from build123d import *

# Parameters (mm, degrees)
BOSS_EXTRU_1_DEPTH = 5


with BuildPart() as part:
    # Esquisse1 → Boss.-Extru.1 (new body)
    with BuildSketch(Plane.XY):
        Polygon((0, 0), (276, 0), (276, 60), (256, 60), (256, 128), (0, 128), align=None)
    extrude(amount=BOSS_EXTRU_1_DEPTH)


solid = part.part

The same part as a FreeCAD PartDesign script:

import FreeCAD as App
import Part
import Sketcher

V = App.Vector
Q = App.Units.Quantity

doc = App.newDocument("Part")
params = doc.addObject("Spreadsheet::Sheet", "Params")
for row, (alias, value) in enumerate([
    ("sketch1_width", "276 mm"),
    ("sketch1_width2", "20 mm"),
    ("sketch1_height", "60 mm"),
    ("sketch1_height2", "68 mm"),
    ("pad1_length", "5 mm"),
], start=1):
    params.set(f"A{row}", alias)
    params.set(f"B{row}", "=" + value)
    params.setAlias(f"B{row}", alias)

body = doc.addObject("PartDesign::Body", "Body")

# Sketch on XY plane
sketch1 = doc.addObject("Sketcher::SketchObject", "Sketch")
body.addObject(sketch1)
sketch1.AttachmentSupport = (doc.XY_Plane, [""])
sketch1.MapMode = "FlatFace"
sketch1.addGeometry([
    Part.LineSegment(V(0, 0, 0), V(276, 0, 0)),  # 0
    Part.LineSegment(V(276, 0, 0), V(276, 60, 0)),  # 1
    Part.LineSegment(V(276, 60, 0), V(256, 60, 0)),  # 2
    Part.LineSegment(V(256, 60, 0), V(256, 128, 0)),  # 3
    Part.LineSegment(V(256, 128, 0), V(0, 128, 0)),  # 4
    Part.LineSegment(V(0, 128, 0), V(0, 0, 0)),  # 5
], False)
sketch1.addConstraint([
    Sketcher.Constraint("Coincident", 0, 2, 1, 1),
    Sketcher.Constraint("Coincident", 1, 2, 2, 1),
    Sketcher.Constraint("Coincident", 2, 2, 3, 1),
    Sketcher.Constraint("Coincident", 3, 2, 4, 1),
    Sketcher.Constraint("Coincident", 4, 2, 5, 1),
    Sketcher.Constraint("Coincident", 5, 2, 0, 1),
    Sketcher.Constraint("Horizontal", 0),
    Sketcher.Constraint("Vertical", 1),
    Sketcher.Constraint("Horizontal", 2),
    Sketcher.Constraint("Vertical", 3),
    Sketcher.Constraint("Horizontal", 4),
    Sketcher.Constraint("Vertical", 5),
    Sketcher.Constraint("Coincident", 5, 2, -1, 1),
    Sketcher.Constraint("DistanceX", 0, 1, 0, 2, Q("276 mm")),
    Sketcher.Constraint("DistanceX", 2, 2, 2, 1, Q("20 mm")),
    Sketcher.Constraint("DistanceY", 1, 1, 1, 2, Q("60 mm")),
    Sketcher.Constraint("DistanceY", 3, 1, 3, 2, Q("68 mm")),
])
sketch1.setExpression("Constraints[13]", "Params.sketch1_width")
sketch1.setExpression("Constraints[14]", "Params.sketch1_width2")
sketch1.setExpression("Constraints[15]", "Params.sketch1_height")
sketch1.setExpression("Constraints[16]", "Params.sketch1_height2")
pad1 = doc.addObject("PartDesign::Pad", "Pad")
body.addObject(pad1)
pad1.Profile = sketch1
pad1.setExpression("Length", "Params.pad1_length")

doc.recompute()
